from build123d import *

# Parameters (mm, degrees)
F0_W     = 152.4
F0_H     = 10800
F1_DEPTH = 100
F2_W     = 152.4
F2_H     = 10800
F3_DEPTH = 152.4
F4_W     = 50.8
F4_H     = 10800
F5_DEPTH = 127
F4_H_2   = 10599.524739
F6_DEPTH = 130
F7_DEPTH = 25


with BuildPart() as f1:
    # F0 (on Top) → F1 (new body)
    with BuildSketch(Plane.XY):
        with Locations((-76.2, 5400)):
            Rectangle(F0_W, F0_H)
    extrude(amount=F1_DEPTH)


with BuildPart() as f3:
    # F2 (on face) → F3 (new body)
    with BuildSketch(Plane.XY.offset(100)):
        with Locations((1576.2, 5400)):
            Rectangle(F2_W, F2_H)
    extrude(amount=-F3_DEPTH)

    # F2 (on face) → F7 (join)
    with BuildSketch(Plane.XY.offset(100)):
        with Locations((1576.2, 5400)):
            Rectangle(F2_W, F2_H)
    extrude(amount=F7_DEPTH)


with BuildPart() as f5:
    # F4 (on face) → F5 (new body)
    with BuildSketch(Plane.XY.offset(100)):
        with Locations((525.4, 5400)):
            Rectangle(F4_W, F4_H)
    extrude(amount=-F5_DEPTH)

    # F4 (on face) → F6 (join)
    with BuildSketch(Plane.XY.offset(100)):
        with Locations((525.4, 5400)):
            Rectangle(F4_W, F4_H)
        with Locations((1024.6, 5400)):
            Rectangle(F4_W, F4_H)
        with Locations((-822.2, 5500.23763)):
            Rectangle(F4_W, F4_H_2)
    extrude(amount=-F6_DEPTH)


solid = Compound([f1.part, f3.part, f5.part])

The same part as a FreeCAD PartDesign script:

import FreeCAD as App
import Part
import Sketcher


def add_polygon(sketch, points):
    """Adds a closed chain of lines whose ends are joined by coincident constraints."""
    first, n = sketch.GeometryCount, len(points)
    for a, b in zip(points, points[1:] + points[:1]):
        sketch.addGeometry(Part.LineSegment(App.Vector(*a, 0), App.Vector(*b, 0)), False)
    for i in range(n):
        sketch.addConstraint(Sketcher.Constraint("Coincident", first + i, 2, first + (i + 1) % n, 1))

doc = App.newDocument("Part")
body = doc.addObject("PartDesign::Body", "Body")

sketch1 = body.newObject("Sketcher::SketchObject", "Sketch")
sketch1.AttachmentSupport = (doc.getObject("XY_Plane"), [""])
sketch1.MapMode = "FlatFace"
add_polygon(sketch1, [(-152, 10800), (-152, 0), (0, 0), (0, 10800)])
sketch1.addConstraint(Sketcher.Constraint("Vertical", 0))
sketch1.addConstraint(Sketcher.Constraint("Horizontal", 1))
sketch1.addConstraint(Sketcher.Constraint("Vertical", 2))
sketch1.addConstraint(Sketcher.Constraint("Horizontal", 3))
sketch1.addConstraint(Sketcher.Constraint("Coincident", 1, 2, -1, 1))
sketch1.addConstraint(Sketcher.Constraint("DistanceY", 0, 2, 0, 1, 10800.0))
sketch1.addConstraint(Sketcher.Constraint("DistanceX", 1, 1, 1, 2, 152.4))
pad1 = body.newObject("PartDesign::Pad", "Pad")
pad1.Profile = sketch1
pad1.Length = 100
body2 = doc.addObject("PartDesign::Body", "Body001")

sketch2 = body2.newObject("Sketcher::SketchObject", "Sketch001")
sketch2.AttachmentSupport = (doc.getObject("XY_Plane001"), [""])
sketch2.MapMode = "FlatFace"
sketch2.AttachmentOffset = App.Placement(App.Vector(0, 0, 100), App.Rotation())
add_polygon(sketch2, [(1500, 10800), (1500, 0), (1652, 0), (1652, 10800)])
sketch2.addConstraint(Sketcher.Constraint("Vertical", 0))
sketch2.addConstraint(Sketcher.Constraint("Horizontal", 1))
sketch2.addConstraint(Sketcher.Constraint("Vertical", 2))
sketch2.addConstraint(Sketcher.Constraint("Horizontal", 3))
sketch2.addConstraint(Sketcher.Constraint("PointOnObject", 0, 2, -1))
sketch2.addConstraint(Sketcher.Constraint("DistanceY", 0, 2, 0, 1, 10800.0))
sketch2.addConstraint(Sketcher.Constraint("DistanceX", 1, 1, 1, 2, 152.4))
sketch2.addConstraint(Sketcher.Constraint("DistanceX", -1, 1, 0, 2, 1500.0))
pad2 = body2.newObject("PartDesign::Pad", "Pad001")
pad2.Profile = sketch2
pad2.Length = 152.4
pad2.Reversed = True

sketch3 = body2.newObject("Sketcher::SketchObject", "Sketch002")
sketch3.AttachmentSupport = (doc.getObject("XY_Plane001"), [""])
sketch3.MapMode = "FlatFace"
sketch3.AttachmentOffset = App.Placement(App.Vector(0, 0, 100), App.Rotation())
add_polygon(sketch3, [(1500, 10800), (1500, 0), (1652, 0), (1652, 10800)])
sketch3.addConstraint(Sketcher.Constraint("Vertical", 0))
sketch3.addConstraint(Sketcher.Constraint("Horizontal", 1))
sketch3.addConstraint(Sketcher.Constraint("Vertical", 2))
sketch3.addConstraint(Sketcher.Constraint("Horizontal", 3))
sketch3.addConstraint(Sketcher.Constraint("PointOnObject", 0, 2, -1))
sketch3.addConstraint(Sketcher.Constraint("DistanceY", 0, 2, 0, 1, 10800.0))
sketch3.addConstraint(Sketcher.Constraint("DistanceX", 1, 1, 1, 2, 152.4))
sketch3.addConstraint(Sketcher.Constraint("DistanceX", -1, 1, 0, 2, 1500.0))
pad3 = body2.newObject("PartDesign::Pad", "Pad002")
pad3.Profile = sketch3
pad3.Length = 25
body3 = doc.addObject("PartDesign::Body", "Body002")
body3.AllowCompound = True

sketch4 = body3.newObject("Sketcher::SketchObject", "Sketch003")
sketch4.AttachmentSupport = (doc.getObject("XY_Plane002"), [""])
sketch4.MapMode = "FlatFace"
sketch4.AttachmentOffset = App.Placement(App.Vector(0, 0, 100), App.Rotation())
add_polygon(sketch4, [(500, 10800), (500, 0), (551, 0), (551, 10800)])
sketch4.addConstraint(Sketcher.Constraint("Vertical", 0))
sketch4.addConstraint(Sketcher.Constraint("Horizontal", 1))
sketch4.addConstraint(Sketcher.Constraint("Vertical", 2))
sketch4.addConstraint(Sketcher.Constraint("Horizontal", 3))
sketch4.addConstraint(Sketcher.Constraint("PointOnObject", 0, 2, -1))
sketch4.addConstraint(Sketcher.Constraint("DistanceY", 0, 2, 0, 1, 10800.0))
sketch4.addConstraint(Sketcher.Constraint("DistanceX", 1, 1, 1, 2, 50.8))
sketch4.addConstraint(Sketcher.Constraint("DistanceX", -1, 1, 0, 2, 500.0))
pad4 = body3.newObject("PartDesign::Pad", "Pad003")
pad4.Profile = sketch4
pad4.Length = 127
pad4.Reversed = True

sketch5 = body3.newObject("Sketcher::SketchObject", "Sketch004")
sketch5.AttachmentSupport = (doc.getObject("XY_Plane002"), [""])
sketch5.MapMode = "FlatFace"
sketch5.AttachmentOffset = App.Placement(App.Vector(0, 0, 100), App.Rotation())
add_polygon(sketch5, [(500, 10800), (500, 0), (551, 0), (551, 10800)])
add_polygon(sketch5, [(999, 10800), (999, 0), (1050, 0), (1050, 10800)])
add_polygon(sketch5, [(-848, 10800), (-848, 200), (-797, 200), (-797, 10800)])
sketch5.addConstraint(Sketcher.Constraint("Vertical", 0))
sketch5.addConstraint(Sketcher.Constraint("Horizontal", 1))
sketch5.addConstraint(Sketcher.Constraint("Vertical", 2))
sketch5.addConstraint(Sketcher.Constraint("Horizontal", 3))
sketch5.addConstraint(Sketcher.Constraint("Vertical", 4))
sketch5.addConstraint(Sketcher.Constraint("Horizontal", 5))
sketch5.addConstraint(Sketcher.Constraint("Vertical", 6))
sketch5.addConstraint(Sketcher.Constraint("Horizontal", 7))
sketch5.addConstraint(Sketcher.Constraint("Vertical", 8))
sketch5.addConstraint(Sketcher.Constraint("Horizontal", 9))
sketch5.addConstraint(Sketcher.Constraint("Vertical", 10))
sketch5.addConstraint(Sketcher.Constraint("Horizontal", 11))
sketch5.addConstraint(Sketcher.Constraint("PointOnObject", 0, 2, -1))
sketch5.addConstraint(Sketcher.Constraint("PointOnObject", 4, 2, -1))
sketch5.addConstraint(Sketcher.Constraint("Horizontal", 3, 2, 6, 2))
sketch5.addConstraint(Sketcher.Constraint("Horizontal", 7, 2, 10, 2))
sketch5.addConstraint(Sketcher.Constraint("Equal", 3, 5))
sketch5.addConstraint(Sketcher.Constraint("Equal", 7, 9))
sketch5.addConstraint(Sketcher.Constraint("DistanceY", 0, 2, 0, 1, 10800.0))
sketch5.addConstraint(Sketcher.Constraint("DistanceX", 1, 1, 1, 2, 50.8))
sketch5.addConstraint(Sketcher.Constraint("DistanceX", -1, 1, 0, 2, 500.0))
sketch5.addConstraint(Sketcher.Constraint("DistanceX", -1, 1, 5, 2, 1050.0))
sketch5.addConstraint(Sketcher.Constraint("DistanceX", 9, 2, 4, 2, 1796.0))
sketch5.addConstraint(Sketcher.Constraint("DistanceY", 8, 2, 8, 1, 10599.524739))
pad5 = body3.newObject("PartDesign::Pad", "Pad004")
pad5.Profile = sketch5
pad5.Length = 130
pad5.Reversed = True

doc.recompute()
